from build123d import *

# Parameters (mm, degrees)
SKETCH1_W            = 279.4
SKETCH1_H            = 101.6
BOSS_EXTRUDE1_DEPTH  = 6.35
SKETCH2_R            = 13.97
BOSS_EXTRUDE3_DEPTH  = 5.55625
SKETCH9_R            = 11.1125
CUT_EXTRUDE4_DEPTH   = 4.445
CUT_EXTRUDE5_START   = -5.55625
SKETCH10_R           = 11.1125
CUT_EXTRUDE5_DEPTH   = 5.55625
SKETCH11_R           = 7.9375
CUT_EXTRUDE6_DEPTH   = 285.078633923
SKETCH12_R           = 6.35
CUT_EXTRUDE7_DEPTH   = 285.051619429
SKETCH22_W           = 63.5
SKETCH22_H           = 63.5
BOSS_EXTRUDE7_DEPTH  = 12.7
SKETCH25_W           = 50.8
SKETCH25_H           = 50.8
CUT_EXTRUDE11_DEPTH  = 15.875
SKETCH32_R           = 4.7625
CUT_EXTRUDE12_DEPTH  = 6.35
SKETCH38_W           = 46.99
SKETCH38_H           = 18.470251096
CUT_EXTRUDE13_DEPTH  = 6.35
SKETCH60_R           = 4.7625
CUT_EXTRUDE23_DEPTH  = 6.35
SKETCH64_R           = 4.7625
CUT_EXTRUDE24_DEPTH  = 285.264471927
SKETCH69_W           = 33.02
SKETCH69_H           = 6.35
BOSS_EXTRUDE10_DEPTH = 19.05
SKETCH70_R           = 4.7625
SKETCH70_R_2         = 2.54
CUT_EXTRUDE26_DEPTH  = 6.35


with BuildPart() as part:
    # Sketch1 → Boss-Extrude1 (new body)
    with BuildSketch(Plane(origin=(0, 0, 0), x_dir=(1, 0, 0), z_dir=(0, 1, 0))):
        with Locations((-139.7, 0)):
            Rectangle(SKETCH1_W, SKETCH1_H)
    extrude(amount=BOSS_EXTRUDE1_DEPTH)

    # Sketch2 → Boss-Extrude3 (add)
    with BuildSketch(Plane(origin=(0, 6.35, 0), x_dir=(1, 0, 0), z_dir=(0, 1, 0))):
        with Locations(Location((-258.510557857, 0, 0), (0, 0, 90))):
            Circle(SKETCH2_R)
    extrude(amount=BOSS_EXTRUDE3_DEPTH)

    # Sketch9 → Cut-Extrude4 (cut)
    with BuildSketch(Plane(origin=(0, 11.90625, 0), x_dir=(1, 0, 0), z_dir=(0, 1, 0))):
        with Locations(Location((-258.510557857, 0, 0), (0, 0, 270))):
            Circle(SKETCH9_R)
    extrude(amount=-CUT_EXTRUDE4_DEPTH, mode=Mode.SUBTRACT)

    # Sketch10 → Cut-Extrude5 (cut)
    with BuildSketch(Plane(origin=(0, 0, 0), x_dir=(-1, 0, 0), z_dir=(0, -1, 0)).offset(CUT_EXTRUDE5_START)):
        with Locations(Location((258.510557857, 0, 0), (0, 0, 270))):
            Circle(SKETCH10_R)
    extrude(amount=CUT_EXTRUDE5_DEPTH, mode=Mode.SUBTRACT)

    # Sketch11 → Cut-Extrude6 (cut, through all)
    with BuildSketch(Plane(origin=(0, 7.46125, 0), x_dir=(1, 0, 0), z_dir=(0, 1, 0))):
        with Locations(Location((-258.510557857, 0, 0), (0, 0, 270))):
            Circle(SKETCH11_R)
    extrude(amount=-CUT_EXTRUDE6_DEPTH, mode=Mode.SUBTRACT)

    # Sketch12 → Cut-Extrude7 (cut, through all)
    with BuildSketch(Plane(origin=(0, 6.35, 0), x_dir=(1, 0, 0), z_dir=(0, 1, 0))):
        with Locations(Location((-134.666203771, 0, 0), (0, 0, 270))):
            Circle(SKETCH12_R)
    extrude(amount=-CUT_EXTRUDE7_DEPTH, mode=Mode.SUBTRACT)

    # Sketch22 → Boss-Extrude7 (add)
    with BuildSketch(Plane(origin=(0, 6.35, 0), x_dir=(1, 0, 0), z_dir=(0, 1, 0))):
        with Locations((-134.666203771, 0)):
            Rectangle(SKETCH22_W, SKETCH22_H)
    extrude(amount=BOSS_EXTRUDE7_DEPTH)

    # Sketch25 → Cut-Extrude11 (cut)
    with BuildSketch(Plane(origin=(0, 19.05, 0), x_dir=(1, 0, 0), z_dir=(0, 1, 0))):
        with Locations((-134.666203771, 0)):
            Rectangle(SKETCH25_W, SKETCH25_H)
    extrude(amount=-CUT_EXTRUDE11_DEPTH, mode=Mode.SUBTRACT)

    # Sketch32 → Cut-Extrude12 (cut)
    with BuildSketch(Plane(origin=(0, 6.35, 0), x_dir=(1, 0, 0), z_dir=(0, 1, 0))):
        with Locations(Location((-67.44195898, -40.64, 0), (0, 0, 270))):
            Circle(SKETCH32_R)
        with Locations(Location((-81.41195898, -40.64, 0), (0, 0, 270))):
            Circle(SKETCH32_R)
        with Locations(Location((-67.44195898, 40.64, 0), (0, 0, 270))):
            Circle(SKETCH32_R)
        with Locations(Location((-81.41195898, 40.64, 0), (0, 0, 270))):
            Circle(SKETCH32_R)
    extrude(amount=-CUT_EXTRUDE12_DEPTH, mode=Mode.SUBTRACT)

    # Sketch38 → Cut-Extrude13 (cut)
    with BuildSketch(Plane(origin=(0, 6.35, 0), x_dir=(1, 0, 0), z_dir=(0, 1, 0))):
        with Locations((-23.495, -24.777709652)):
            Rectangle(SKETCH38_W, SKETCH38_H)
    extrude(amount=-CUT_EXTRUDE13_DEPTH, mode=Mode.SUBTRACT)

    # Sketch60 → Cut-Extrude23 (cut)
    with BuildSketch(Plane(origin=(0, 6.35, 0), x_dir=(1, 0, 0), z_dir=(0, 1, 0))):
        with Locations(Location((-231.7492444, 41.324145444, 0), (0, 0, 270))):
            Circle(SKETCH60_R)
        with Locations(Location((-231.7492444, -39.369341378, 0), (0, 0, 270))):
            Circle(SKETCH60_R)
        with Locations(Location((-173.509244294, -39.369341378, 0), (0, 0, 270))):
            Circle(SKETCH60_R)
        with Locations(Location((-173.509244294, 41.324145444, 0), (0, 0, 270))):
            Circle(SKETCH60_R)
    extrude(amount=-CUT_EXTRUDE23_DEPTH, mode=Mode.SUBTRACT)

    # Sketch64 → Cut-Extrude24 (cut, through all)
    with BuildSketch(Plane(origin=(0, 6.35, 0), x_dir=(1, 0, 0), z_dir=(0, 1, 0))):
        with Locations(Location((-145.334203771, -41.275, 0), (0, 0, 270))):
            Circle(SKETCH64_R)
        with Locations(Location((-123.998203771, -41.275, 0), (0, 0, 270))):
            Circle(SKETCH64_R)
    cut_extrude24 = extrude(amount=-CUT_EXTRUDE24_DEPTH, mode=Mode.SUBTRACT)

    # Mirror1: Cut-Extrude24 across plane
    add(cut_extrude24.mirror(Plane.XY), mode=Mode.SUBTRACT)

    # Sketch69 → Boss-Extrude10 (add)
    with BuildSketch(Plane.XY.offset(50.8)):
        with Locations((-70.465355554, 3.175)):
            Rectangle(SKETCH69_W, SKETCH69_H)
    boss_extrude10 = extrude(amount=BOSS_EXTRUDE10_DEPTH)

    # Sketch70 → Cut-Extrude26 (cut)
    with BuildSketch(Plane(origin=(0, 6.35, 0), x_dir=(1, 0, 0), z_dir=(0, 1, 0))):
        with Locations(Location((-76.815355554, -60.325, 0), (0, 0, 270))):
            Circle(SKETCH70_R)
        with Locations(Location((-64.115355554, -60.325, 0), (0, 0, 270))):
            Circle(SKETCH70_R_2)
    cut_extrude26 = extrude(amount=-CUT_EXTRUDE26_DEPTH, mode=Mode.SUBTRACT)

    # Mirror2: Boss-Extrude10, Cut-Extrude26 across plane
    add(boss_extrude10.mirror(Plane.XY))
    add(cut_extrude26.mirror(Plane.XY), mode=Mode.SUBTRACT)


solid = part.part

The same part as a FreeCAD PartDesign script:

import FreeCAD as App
import Part
import Sketcher
Q = App.Units.Quantity


def add_polygon(sketch, points):
    """Adds a closed chain of lines whose ends are joined by coincident constraints."""
    first, n = sketch.GeometryCount, len(points)
    for a, b in zip(points, points[1:] + points[:1]):
        sketch.addGeometry(Part.LineSegment(App.Vector(*a, 0), App.Vector(*b, 0)), False)
    for i in range(n):
        sketch.addConstraint(Sketcher.Constraint("Coincident", first + i, 2, first + (i + 1) % n, 1))

doc = App.newDocument("Part")
body = doc.addObject("PartDesign::Body", "Body")

# Sketch on XZ plane
sketch1 = body.newObject("Sketcher::SketchObject", "Sketch")
sketch1.AttachmentSupport = (doc.getObject("XZ_Plane"), [""])
sketch1.MapMode = "FlatFace"
add_polygon(sketch1, [(-279, -51), (-279, 51), (0, 51), (0, -51)])  # lines 0-3
sketch1.addConstraint([
    Sketcher.Constraint("Vertical", 0),
    Sketcher.Constraint("Horizontal", 1),
    Sketcher.Constraint("Vertical", 2),
    Sketcher.Constraint("Horizontal", 3),
    Sketcher.Constraint("Symmetric", 1, 2, 2, 2, -1, 1),
    Sketcher.Constraint("DistanceX", 1, 1, 1, 2, Q("11 in")),
    Sketcher.Constraint("DistanceY", 0, 1, 0, 2, Q("4 in")),
])
pad1 = body.newObject("PartDesign::Pad", "Pad")
pad1.Profile = sketch1
pad1.Length = Q("0.25 in")
pad1.Reversed = True

# Sketch on XZ plane
sketch2 = body.newObject("Sketcher::SketchObject", "Sketch001")
sketch2.AttachmentSupport = (doc.getObject("XZ_Plane"), [""])
sketch2.MapMode = "FlatFace"
sketch2.AttachmentOffset = App.Placement(App.Vector(0, 0, -0.25 * 25.4), App.Rotation())
sketch2.addGeometry(Part.Circle(App.Vector(-259, 0, 0), App.Vector(0, 0, 1), 14), False)
sketch2.addConstraint([
    Sketcher.Constraint("PointOnObject", 0, 3, -1),
    Sketcher.Constraint("Diameter", 0, Q("1.1 in")),
    Sketcher.Constraint("DistanceX", 0, 3, -1, 1, 258.510558),
])
pad2 = body.newObject("PartDesign::Pad", "Pad001")
pad2.Profile = sketch2
pad2.Length = Q("0.21875 in")
pad2.Reversed = True

# Sketch on XZ plane
sketch3 = body.newObject("Sketcher::SketchObject", "Sketch002")
sketch3.AttachmentSupport = (doc.getObject("XZ_Plane"), [""])
sketch3.MapMode = "FlatFace"
sketch3.AttachmentOffset = App.Placement(App.Vector(0, 0, -0.46875 * 25.4), App.Rotation())
sketch3.addGeometry(Part.Circle(App.Vector(-259, 0, 0), App.Vector(0, 0, 1), 11), False)
sketch3.addConstraint([
    Sketcher.Constraint("PointOnObject", 0, 3, -1),
    Sketcher.Constraint("Diameter", 0, Q("0.875 in")),
    Sketcher.Constraint("DistanceX", 0, 3, -1, 1, 258.510558),
])
pocket1 = body.newObject("PartDesign::Pocket", "Pocket")
pocket1.Profile = sketch3
pocket1.Length = Q("0.175 in")
pocket1.Reversed = True

# Sketch on XZ plane
sketch4 = body.newObject("Sketcher::SketchObject", "Sketch003")
sketch4.AttachmentSupport = (doc.getObject("XZ_Plane"), [""])
sketch4.MapMode = "FlatFace"
sketch4.AttachmentOffset = App.Placement(App.Vector(0, 0, -0.21875 * 25.4), App.Rotation())
sketch4.addGeometry(Part.Circle(App.Vector(-259, 0, 0), App.Vector(0, 0, 1), 11), False)
sketch4.addConstraint([
    Sketcher.Constraint("PointOnObject", 0, 3, -1),
    Sketcher.Constraint("Diameter", 0, Q("0.875 in")),
    Sketcher.Constraint("DistanceX", 0, 3, -1, 1, 258.510558),
])
pocket2 = body.newObject("PartDesign::Pocket", "Pocket001")
pocket2.Profile = sketch4
pocket2.Length = Q("0.21875 in")
pocket2.Reversed = True

# Sketch on XZ plane
sketch5 = body.newObject("Sketcher::SketchObject", "Sketch004")
sketch5.AttachmentSupport = (doc.getObject("XZ_Plane"), [""])
sketch5.MapMode = "FlatFace"
sketch5.AttachmentOffset = App.Placement(App.Vector(0, 0, -7.46125), App.Rotation())
sketch5.addGeometry(Part.Circle(App.Vector(-259, 0, 0), App.Vector(0, 0, 1), 8), False)
sketch5.addConstraint([
    Sketcher.Constraint("PointOnObject", 0, 3, -1),
    Sketcher.Constraint("Diameter", 0, Q("0.625 in")),
    Sketcher.Constraint("DistanceX", 0, 3, -1, 1, 258.510558),
])
pocket3 = body.newObject("PartDesign::Pocket", "Pocket002")
pocket3.Profile = sketch5
pocket3.Type = "ThroughAll"
pocket3.Reversed = True

# Sketch on XZ plane
sketch6 = body.newObject("Sketcher::SketchObject", "Sketch005")
sketch6.AttachmentSupport = (doc.getObject("XZ_Plane"), [""])
sketch6.MapMode = "FlatFace"
sketch6.AttachmentOffset = App.Placement(App.Vector(0, 0, -0.25 * 25.4), App.Rotation())
sketch6.addGeometry(Part.Circle(App.Vector(-135, 0, 0), App.Vector(0, 0, 1), 6), False)
sketch6.addConstraint([
    Sketcher.Constraint("PointOnObject", 0, 3, -1),
    Sketcher.Constraint("Diameter", 0, Q("0.5 in")),
    Sketcher.Constraint("DistanceX", 0, 3, -1, 1, 134.666204),
])
pocket4 = body.newObject("PartDesign::Pocket", "Pocket003")
pocket4.Profile = sketch6
pocket4.Type = "ThroughAll"
pocket4.Reversed = True

# Sketch on XZ plane
sketch7 = body.newObject("Sketcher::SketchObject", "Sketch006")
sketch7.AttachmentSupport = (doc.getObject("XZ_Plane"), [""])
sketch7.MapMode = "FlatFace"
sketch7.AttachmentOffset = App.Placement(App.Vector(0, 0, -0.25 * 25.4), App.Rotation())
add_polygon(sketch7, [(-166, -32), (-166, 32), (-103, 32), (-103, -32)])  # lines 0-3
sketch7.addConstraint([
    Sketcher.Constraint("Vertical", 0),
    Sketcher.Constraint("Horizontal", 1),
    Sketcher.Constraint("Vertical", 2),
    Sketcher.Constraint("Horizontal", 3),
    Sketcher.Constraint("Equal", 3, 0),
    Sketcher.Constraint("DistanceX", 1, 1, 1, 2, Q("2.5 in")),
    Sketcher.Constraint("DistanceY", -1, 1, 0, 2, Q("1.25 in")),
    Sketcher.Constraint("DistanceX", 0, 2, -1, 1, 166.416204),
])
pad3 = body.newObject("PartDesign::Pad", "Pad002")
pad3.Profile = sketch7
pad3.Length = Q("0.5 in")
pad3.Reversed = True

# Sketch on XZ plane
sketch8 = body.newObject("Sketcher::SketchObject", "Sketch007")
sketch8.AttachmentSupport = (doc.getObject("XZ_Plane"), [""])
sketch8.MapMode = "FlatFace"
sketch8.AttachmentOffset = App.Placement(App.Vector(0, 0, -0.75 * 25.4), App.Rotation())
add_polygon(sketch8, [(-160, -25), (-160, 25), (-109, 25), (-109, -25)])  # lines 0-3
sketch8.addConstraint([
    Sketcher.Constraint("Vertical", 0),
    Sketcher.Constraint("Horizontal", 1),
    Sketcher.Constraint("Vertical", 2),
    Sketcher.Constraint("Horizontal", 3),
    Sketcher.Constraint("Equal", 3, 0),
    Sketcher.Constraint("DistanceX", 1, 1, 1, 2, Q("2 in")),
    Sketcher.Constraint("DistanceY", -1, 1, 0, 2, Q("1 in")),
    Sketcher.Constraint("DistanceX", 0, 2, -1, 1, 160.066204),
])
pocket5 = body.newObject("PartDesign::Pocket", "Pocket004")
pocket5.Profile = sketch8
pocket5.Length = Q("0.625 in")
pocket5.Reversed = True

# Sketch on XZ plane
sketch9 = body.newObject("Sketcher::SketchObject", "Sketch008")
sketch9.AttachmentSupport = (doc.getObject("XZ_Plane"), [""])
sketch9.MapMode = "FlatFace"
sketch9.AttachmentOffset = App.Placement(App.Vector(0, 0, -0.25 * 25.4), App.Rotation())
sketch9.addGeometry([
    Part.Circle(App.Vector(-67.4, 40.6, 0), App.Vector(0, 0, 1), 4.8),
    Part.Circle(App.Vector(-81.4, 40.6, 0), App.Vector(0, 0, 1), 4.8),
    Part.Circle(App.Vector(-67.4, -40.6, 0), App.Vector(0, 0, 1), 4.8),
    Part.Circle(App.Vector(-81.4, -40.6, 0), App.Vector(0, 0, 1), 4.8),
], False)
sketch9.addConstraint([
    Sketcher.Constraint("Equal", 0, 1),
    Sketcher.Constraint("Equal", 1, 2),
    Sketcher.Constraint("Equal", 2, 3),
    Sketcher.Constraint("Symmetric", 0, 3, 2, 3, -1),
    Sketcher.Constraint("Symmetric", 1, 3, 3, 3, -1),
    Sketcher.Constraint("Horizontal", 0, 3, 1, 3),
    Sketcher.Constraint("Diameter", 0, Q("0.375 in")),
    Sketcher.Constraint("DistanceY", -1, 1, 0, 3, Q("1.6 in")),
    Sketcher.Constraint("DistanceX", 1, 3, 0, 3, Q("0.55 in")),
    Sketcher.Constraint("DistanceX", 0, 3, -1, 1, 67.441959),
])
pocket6 = body.newObject("PartDesign::Pocket", "Pocket005")
pocket6.Profile = sketch9
pocket6.Length = Q("0.25 in")
pocket6.Reversed = True

# Sketch on XZ plane
sketch10 = body.newObject("Sketcher::SketchObject", "Sketch009")
sketch10.AttachmentSupport = (doc.getObject("XZ_Plane"), [""])
sketch10.MapMode = "FlatFace"
sketch10.AttachmentOffset = App.Placement(App.Vector(0, 0, -0.25 * 25.4), App.Rotation())
add_polygon(sketch10, [(-47, 16), (-47, 34), (0, 34), (0, 16)])  # lines 0-3
sketch10.addConstraint([
    Sketcher.Constraint("Vertical", 0),
    Sketcher.Constraint("Horizontal", 1),
    Sketcher.Constraint("Vertical", 2),
    Sketcher.Constraint("Horizontal", 3),
    Sketcher.Constraint("PointOnObject", 1, 2, -2),
    Sketcher.Constraint("DistanceX", 1, 1, 1, 2, Q("1.85 in")),
    Sketcher.Constraint("DistanceY", 0, 1, 0, 2, 18.470251),
    Sketcher.Constraint("DistanceY", -1, 1, 0, 2, 34.012835),
])
pocket7 = body.newObject("PartDesign::Pocket", "Pocket006")
pocket7.Profile = sketch10
pocket7.Length = Q("0.25 in")
pocket7.Reversed = True

# Sketch on XZ plane
sketch11 = body.newObject("Sketcher::SketchObject", "Sketch010")
sketch11.AttachmentSupport = (doc.getObject("XZ_Plane"), [""])
sketch11.MapMode = "FlatFace"
sketch11.AttachmentOffset = App.Placement(App.Vector(0, 0, -0.25 * 25.4), App.Rotation())
sketch11.addGeometry([
    Part.Circle(App.Vector(-231.7, -41.3, 0), App.Vector(0, 0, 1), 4.8),
    Part.Circle(App.Vector(-231.7, 39.4, 0), App.Vector(0, 0, 1), 4.8),
    Part.Circle(App.Vector(-173.5, 39.4, 0), App.Vector(0, 0, 1), 4.8),
    Part.Circle(App.Vector(-173.5, -41.3, 0), App.Vector(0, 0, 1), 4.8),
], False)
sketch11.addConstraint([
    Sketcher.Constraint("Equal", 0, 1),
    Sketcher.Constraint("Equal", 1, 2),
    Sketcher.Constraint("Equal", 2, 3),
    Sketcher.Constraint("Horizontal", 1, 3, 2, 3),
    Sketcher.Constraint("Horizontal", 0, 3, 3, 3),
    Sketcher.Constraint("Vertical", 0, 3, 1, 3),
    Sketcher.Constraint("Vertical", 2, 3, 3, 3),
    Sketcher.Constraint("Diameter", 0, Q("0.375 in")),
    Sketcher.Constraint("DistanceX", 1, 3, 2, 3, 58.24),
    Sketcher.Constraint("DistanceY", -1, 1, 1, 3, 39.369341),
    Sketcher.Constraint("DistanceX", 0, 3, -1, 1, 231.749244),
    Sketcher.Constraint("DistanceY", 0, 3, -1, 1, 41.324145),
])
pocket8 = body.newObject("PartDesign::Pocket", "Pocket007")
pocket8.Profile = sketch11
pocket8.Length = Q("0.25 in")
pocket8.Reversed = True

# Sketch on XZ plane
sketch12 = body.newObject("Sketcher::SketchObject", "Sketch011")
sketch12.AttachmentSupport = (doc.getObject("XZ_Plane"), [""])
sketch12.MapMode = "FlatFace"
sketch12.AttachmentOffset = App.Placement(App.Vector(0, 0, -0.25 * 25.4), App.Rotation())
sketch12.addGeometry([
    Part.Circle(App.Vector(-145.3, 41.3, 0), App.Vector(0, 0, 1), 4.8),
    Part.Circle(App.Vector(-124, 41.3, 0), App.Vector(0, 0, 1), 4.8),
], False)
sketch12.addConstraint([
    Sketcher.Constraint("Equal", 0, 1),
    Sketcher.Constraint("Horizontal", 0, 3, 1, 3),
    Sketcher.Constraint("Diameter", 0, Q("0.375 in")),
    Sketcher.Constraint("DistanceX", 0, 3, 1, 3, Q("0.84 in")),
    Sketcher.Constraint("DistanceY", -1, 1, 0, 3, Q("1.625 in")),
    Sketcher.Constraint("DistanceX", 0, 3, -1, 1, 145.334204),
])
pocket9 = body.newObject("PartDesign::Pocket", "Pocket008")
pocket9.Profile = sketch12
pocket9.Type = "ThroughAll"
pocket9.Reversed = True
doc.recompute()

mirrored = body.newObject("PartDesign::Mirrored", "Mirrored")
mirrored.Originals = [pocket9]
mirrored.MirrorPlane = (doc.getObject("XY_Plane"), [""])
body.Tip = mirrored

# Sketch on XY plane
sketch13 = body.newObject("Sketcher::SketchObject", "Sketch012")
sketch13.AttachmentSupport = (doc.getObject("XY_Plane"), [""])
sketch13.MapMode = "FlatFace"
sketch13.AttachmentOffset = App.Placement(App.Vector(0, 0, 2 * 25.4), App.Rotation())
add_polygon(sketch13, [(-87, 6), (-87, 0), (-54, 0), (-54, 6)])  # lines 0-3
sketch13.addConstraint([
    Sketcher.Constraint("Vertical", 0),
    Sketcher.Constraint("Horizontal", 1),
    Sketcher.Constraint("Vertical", 2),
    Sketcher.Constraint("Horizontal", 3),
    Sketcher.Constraint("PointOnObject", 0, 2, -1),
    Sketcher.Constraint("DistanceX", 1, 1, 1, 2, Q("1.3 in")),
    Sketcher.Constraint("DistanceY", 0, 2, 0, 1, Q("0.25 in")),
    Sketcher.Constraint("DistanceX", 0, 2, -1, 1, 86.975356),
])
pad4 = body.newObject("PartDesign::Pad", "Pad003")
pad4.Profile = sketch13
pad4.Length = Q("0.75 in")

# Sketch on XZ plane
sketch14 = body.newObject("Sketcher::SketchObject", "Sketch013")
sketch14.AttachmentSupport = (doc.getObject("XZ_Plane"), [""])
sketch14.MapMode = "FlatFace"
sketch14.AttachmentOffset = App.Placement(App.Vector(0, 0, -0.25 * 25.4), App.Rotation())
sketch14.addGeometry([
    Part.Circle(App.Vector(-76.8, 60.3, 0), App.Vector(0, 0, 1), 4.8),
    Part.Circle(App.Vector(-64.1, 60.3, 0), App.Vector(0, 0, 1), 2.5),
], False)
sketch14.addConstraint([
    Sketcher.Constraint("Horizontal", 0, 3, 1, 3),
    Sketcher.Constraint("Diameter", 1, Q("0.2 in")),
    Sketcher.Constraint("Diameter", 0, Q("0.375 in")),
    Sketcher.Constraint("DistanceX", 0, 3, 1, 3, Q("0.5 in")),
    Sketcher.Constraint("DistanceY", -1, 1, 0, 3, Q("2.375 in")),
    Sketcher.Constraint("DistanceX", 0, 3, -1, 1, 76.815356),
])
pocket10 = body.newObject("PartDesign::Pocket", "Pocket009")
pocket10.Profile = sketch14
pocket10.Length = Q("0.25 in")
pocket10.Reversed = True
doc.recompute()

mirrored2 = body.newObject("PartDesign::Mirrored", "Mirrored001")
mirrored2.Originals = [pad4, pocket10]
mirrored2.MirrorPlane = (doc.getObject("XY_Plane"), [""])
body.Tip = mirrored2

doc.recompute()
